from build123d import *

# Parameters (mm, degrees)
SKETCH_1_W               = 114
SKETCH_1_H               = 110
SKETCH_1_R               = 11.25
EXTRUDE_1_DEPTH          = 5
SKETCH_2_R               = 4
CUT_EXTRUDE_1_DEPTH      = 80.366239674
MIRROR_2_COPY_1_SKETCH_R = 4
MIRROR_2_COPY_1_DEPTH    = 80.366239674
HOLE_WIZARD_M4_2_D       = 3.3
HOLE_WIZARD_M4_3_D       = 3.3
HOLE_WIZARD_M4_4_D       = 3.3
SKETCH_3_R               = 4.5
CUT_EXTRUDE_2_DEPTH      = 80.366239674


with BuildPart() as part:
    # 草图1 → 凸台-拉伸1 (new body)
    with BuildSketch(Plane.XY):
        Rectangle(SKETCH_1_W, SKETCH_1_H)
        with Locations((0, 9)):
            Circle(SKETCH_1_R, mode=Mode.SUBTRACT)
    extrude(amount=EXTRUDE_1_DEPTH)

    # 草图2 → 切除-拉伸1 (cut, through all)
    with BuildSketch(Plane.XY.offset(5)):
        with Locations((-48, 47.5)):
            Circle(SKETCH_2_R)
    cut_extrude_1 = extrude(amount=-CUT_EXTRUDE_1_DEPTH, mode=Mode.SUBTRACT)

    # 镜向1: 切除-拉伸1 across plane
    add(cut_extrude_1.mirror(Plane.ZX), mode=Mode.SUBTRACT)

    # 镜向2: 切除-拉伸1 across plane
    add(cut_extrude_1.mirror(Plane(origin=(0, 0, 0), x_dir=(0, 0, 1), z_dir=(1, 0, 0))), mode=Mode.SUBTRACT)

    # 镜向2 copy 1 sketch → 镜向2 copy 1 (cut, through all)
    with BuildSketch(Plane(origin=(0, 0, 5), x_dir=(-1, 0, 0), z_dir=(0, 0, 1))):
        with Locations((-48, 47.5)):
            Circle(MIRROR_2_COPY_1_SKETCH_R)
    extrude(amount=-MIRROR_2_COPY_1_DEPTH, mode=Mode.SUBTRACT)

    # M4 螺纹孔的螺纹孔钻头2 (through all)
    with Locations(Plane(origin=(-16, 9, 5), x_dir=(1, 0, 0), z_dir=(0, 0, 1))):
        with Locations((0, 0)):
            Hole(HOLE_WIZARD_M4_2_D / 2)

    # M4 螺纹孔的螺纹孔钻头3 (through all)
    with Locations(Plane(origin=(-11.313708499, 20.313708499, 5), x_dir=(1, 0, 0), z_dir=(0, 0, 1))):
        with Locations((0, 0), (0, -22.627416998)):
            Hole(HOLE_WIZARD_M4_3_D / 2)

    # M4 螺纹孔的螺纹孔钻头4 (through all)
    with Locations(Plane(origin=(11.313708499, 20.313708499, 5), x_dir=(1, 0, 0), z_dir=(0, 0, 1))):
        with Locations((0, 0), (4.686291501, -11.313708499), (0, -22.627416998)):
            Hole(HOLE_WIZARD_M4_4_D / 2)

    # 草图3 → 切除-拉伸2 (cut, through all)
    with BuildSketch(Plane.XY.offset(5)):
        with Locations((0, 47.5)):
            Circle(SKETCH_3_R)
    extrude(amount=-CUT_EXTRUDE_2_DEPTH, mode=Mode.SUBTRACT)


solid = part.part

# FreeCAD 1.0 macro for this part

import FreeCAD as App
import Part
import Sketcher

V = App.Vector


def add_polygon(sketch, points):
    """Adds a closed chain of lines whose ends are joined by coincident constraints."""
    first, n = sketch.GeometryCount, len(points)
    for a, b in zip(points, points[1:] + points[:1]):
        sketch.addGeometry(Part.LineSegment(App.Vector(*a, 0), App.Vector(*b, 0)), False)
    for i in range(n):
        sketch.addConstraint(Sketcher.Constraint("Coincident", first + i, 2, first + (i + 1) % n, 1))

doc = App.newDocument("Part")
body = doc.addObject("PartDesign::Body", "Body")

# Sketch on XY plane
sketch1 = body.newObject("Sketcher::SketchObject", "Sketch")
sketch1.AttachmentSupport = (doc.getObject("XY_Plane"), [""])
sketch1.MapMode = "FlatFace"
add_polygon(sketch1, [(-57, 55), (-57, -55), (57, -55), (57, 55)])  # lines 0-3
sketch1.addGeometry(Part.Circle(V(0, 9, 0), V(0, 0, 1), 11), False)  # 4
sketch1.addConstraint([
    Sketcher.Constraint("Vertical", 0),
    Sketcher.Constraint("Horizontal", 1),
    Sketcher.Constraint("Vertical", 2),
    Sketcher.Constraint("Horizontal", 3),
    Sketcher.Constraint("Symmetric", 0, 2, 2, 2, -1, 1),
    Sketcher.Constraint("PointOnObject", 4, 3, -2),
    Sketcher.Constraint("Diameter", 4, 22.5),
    Sketcher.Constraint("DistanceX", 1, 1, 1, 2, 114.0),
    Sketcher.Constraint("DistanceY", 0, 2, 0, 1, 110.0),
    Sketcher.Constraint("DistanceY", -1, 1, 4, 3, 9.0),
])
pad1 = body.newObject("PartDesign::Pad", "Pad")
pad1.Profile = sketch1
pad1.Length = 5

# Sketch on XY plane
sketch2 = body.newObject("Sketcher::SketchObject", "Sketch001")
sketch2.AttachmentSupport = (doc.getObject("XY_Plane"), [""])
sketch2.MapMode = "FlatFace"
sketch2.AttachmentOffset = App.Placement(V(0, 0, 5), App.Rotation())
sketch2.addGeometry(Part.Circle(V(-48, 47.5, 0), V(0, 0, 1), 4), False)
sketch2.addConstraint([
    Sketcher.Constraint("Diameter", 0, 8.0),
    Sketcher.Constraint("DistanceX", 0, 3, -1, 1, 48.0),
    Sketcher.Constraint("DistanceY", -1, 1, 0, 3, 47.5),
])
pocket1 = body.newObject("PartDesign::Pocket", "Pocket")
pocket1.Profile = sketch2
pocket1.Type = "ThroughAll"
doc.recompute()

mirrored = body.newObject("PartDesign::Mirrored", "Mirrored")
mirrored.Originals = [pocket1]
mirrored.MirrorPlane = (doc.getObject("XZ_Plane"), [""])
body.Tip = mirrored
doc.recompute()

mirrored2 = body.newObject("PartDesign::Mirrored", "Mirrored001")
mirrored2.Originals = [pocket1]
mirrored2.MirrorPlane = (doc.getObject("YZ_Plane"), [""])
body.Tip = mirrored2

# Sketch on XY plane
sketch3 = body.newObject("Sketcher::SketchObject", "Sketch002")
sketch3.AttachmentSupport = (doc.getObject("XY_Plane"), [""])
sketch3.MapMode = "FlatFace"
sketch3.AttachmentOffset = App.Placement(V(0, 0, 5), App.Rotation())
sketch3.addGeometry(Part.Circle(V(48, -47.5, 0), V(0, 0, 1), 4), False)
sketch3.addConstraint([
    Sketcher.Constraint("Diameter", 0, 8.0),
    Sketcher.Constraint("DistanceX", -1, 1, 0, 3, 48.0),
    Sketcher.Constraint("DistanceY", 0, 3, -1, 1, 47.5),
])
pocket2 = body.newObject("PartDesign::Pocket", "Pocket001")
pocket2.Profile = sketch3
pocket2.Type = "ThroughAll"

# Sketch on XY plane
sketch4 = body.newObject("Sketcher::SketchObject", "Sketch003")
sketch4.AttachmentSupport = (doc.getObject("XY_Plane"), [""])
sketch4.MapMode = "FlatFace"
sketch4.AttachmentOffset = App.Placement(V(0, 0, 5), App.Rotation())
sketch4.addGeometry(Part.Circle(V(-16, 9, 0), V(0, 0, 1), 1.6), False)
sketch4.addConstraint([
    Sketcher.Constraint("Diameter", 0, 3.3),
    Sketcher.Constraint("DistanceX", 0, 3, -1, 1, 16.0),
    Sketcher.Constraint("DistanceY", -1, 1, 0, 3, 9.0),
])
doc.recompute()
hole = body.newObject("PartDesign::Hole", "Hole")
hole.Profile = sketch4
hole.ThreadType = "None"
hole.Diameter = 3.3
hole.DepthType = "ThroughAll"

# Sketch on XY plane
sketch5 = body.newObject("Sketcher::SketchObject", "Sketch004")
sketch5.AttachmentSupport = (doc.getObject("XY_Plane"), [""])
sketch5.MapMode = "FlatFace"
sketch5.AttachmentOffset = App.Placement(V(0, 0, 5), App.Rotation())
sketch5.addGeometry([
    Part.Circle(V(-11.3, 20.3, 0), V(0, 0, 1), 1.6),
    Part.Circle(V(-11.3, -2.3, 0), V(0, 0, 1), 1.6),
], False)
sketch5.addConstraint([
    Sketcher.Constraint("Equal", 0, 1),
    Sketcher.Constraint("Vertical", 0, 3, 1, 3),
    Sketcher.Constraint("Diameter", 0, 3.3),
    Sketcher.Constraint("DistanceX", 0, 3, -1, 1, 11.313708),
    Sketcher.Constraint("DistanceY", -1, 1, 0, 3, 20.313708),
    Sketcher.Constraint("DistanceY", 1, 3, -1, 1, 2.313708),
])
doc.recompute()
hole2 = body.newObject("PartDesign::Hole", "Hole001")
hole2.Profile = sketch5
hole2.ThreadType = "None"
hole2.Diameter = 3.3
hole2.DepthType = "ThroughAll"

# Sketch on XY plane
sketch6 = body.newObject("Sketcher::SketchObject", "Sketch005")
sketch6.AttachmentSupport = (doc.getObject("XY_Plane"), [""])
sketch6.MapMode = "FlatFace"
sketch6.AttachmentOffset = App.Placement(V(0, 0, 5), App.Rotation())
sketch6.addGeometry([
    Part.Circle(V(11.3, 20.3, 0), V(0, 0, 1), 1.6),
    Part.Circle(V(16, 9, 0), V(0, 0, 1), 1.6),
    Part.Circle(V(11.3, -2.3, 0), V(0, 0, 1), 1.6),
], False)
sketch6.addConstraint([
    Sketcher.Constraint("Equal", 0, 1),
    Sketcher.Constraint("Equal", 1, 2),
    Sketcher.Constraint("Vertical", 0, 3, 2, 3),
    Sketcher.Constraint("Diameter", 0, 3.3),
    Sketcher.Constraint("DistanceX", -1, 1, 1, 3, 16.0),
    Sketcher.Constraint("DistanceY", -1, 1, 1, 3, 9.0),
    Sketcher.Constraint("DistanceX", -1, 1, 0, 3, 11.313708),
    Sketcher.Constraint("DistanceY", -1, 1, 0, 3, 20.313708),
    Sketcher.Constraint("DistanceY", 2, 3, -1, 1, 2.313708),
])
doc.recompute()
hole3 = body.newObject("PartDesign::Hole", "Hole002")
hole3.Profile = sketch6
hole3.ThreadType = "None"
hole3.Diameter = 3.3
hole3.DepthType = "ThroughAll"

# Sketch on XY plane
sketch7 = body.newObject("Sketcher::SketchObject", "Sketch006")
sketch7.AttachmentSupport = (doc.getObject("XY_Plane"), [""])
sketch7.MapMode = "FlatFace"
sketch7.AttachmentOffset = App.Placement(V(0, 0, 5), App.Rotation())
sketch7.addGeometry(Part.Circle(V(0, 47.5, 0), V(0, 0, 1), 4.5), False)
sketch7.addConstraint([
    Sketcher.Constraint("PointOnObject", 0, 3, -2),
    Sketcher.Constraint("Diameter", 0, 9.0),
    Sketcher.Constraint("DistanceY", -1, 1, 0, 3, 47.5),
])
pocket3 = body.newObject("PartDesign::Pocket", "Pocket002")
pocket3.Profile = sketch7
pocket3.Type = "ThroughAll"

doc.recompute()
